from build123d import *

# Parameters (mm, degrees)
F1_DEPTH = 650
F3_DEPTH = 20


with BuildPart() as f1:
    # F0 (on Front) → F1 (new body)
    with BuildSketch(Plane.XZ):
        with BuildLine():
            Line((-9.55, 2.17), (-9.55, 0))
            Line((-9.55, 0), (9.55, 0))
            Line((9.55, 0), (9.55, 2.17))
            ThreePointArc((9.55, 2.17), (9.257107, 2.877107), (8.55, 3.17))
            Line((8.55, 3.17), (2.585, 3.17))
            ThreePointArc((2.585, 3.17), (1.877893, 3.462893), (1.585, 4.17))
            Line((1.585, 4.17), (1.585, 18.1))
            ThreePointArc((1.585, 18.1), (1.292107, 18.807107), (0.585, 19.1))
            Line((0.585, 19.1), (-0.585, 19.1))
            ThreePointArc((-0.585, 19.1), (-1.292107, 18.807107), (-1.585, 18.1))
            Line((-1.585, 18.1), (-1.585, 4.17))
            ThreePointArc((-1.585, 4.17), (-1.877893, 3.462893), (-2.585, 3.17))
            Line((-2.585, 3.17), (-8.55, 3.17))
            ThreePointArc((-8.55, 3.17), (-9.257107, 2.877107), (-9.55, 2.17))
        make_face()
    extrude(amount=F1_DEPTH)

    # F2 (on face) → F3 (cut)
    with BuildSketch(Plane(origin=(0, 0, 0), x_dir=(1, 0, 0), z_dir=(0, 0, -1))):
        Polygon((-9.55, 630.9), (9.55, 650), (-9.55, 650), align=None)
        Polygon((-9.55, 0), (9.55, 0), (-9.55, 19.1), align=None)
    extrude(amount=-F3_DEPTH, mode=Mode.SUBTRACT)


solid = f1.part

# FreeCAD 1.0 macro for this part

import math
import FreeCAD as App
import Part
import Sketcher
Q = App.Units.Quantity

doc = App.newDocument("Part")
body = doc.addObject("PartDesign::Body", "Body")

# Sketch on XZ plane
sketch1 = doc.addObject("Sketcher::SketchObject", "Sketch")
body.addObject(sketch1)
sketch1.AttachmentSupport = (doc.XZ_Plane, [""])
sketch1.MapMode = "FlatFace"
sketch1.addGeometry(Part.LineSegment(App.Vector(-9.6, 2.2, 0), App.Vector(-9.6, 0, 0)), False)
sketch1.addGeometry(Part.LineSegment(App.Vector(-9.6, 0, 0), App.Vector(9.6, 0, 0)), False)
sketch1.addGeometry(Part.LineSegment(App.Vector(9.6, 0, 0), App.Vector(9.6, 2.2, 0)), False)
sketch1.addGeometry(Part.ArcOfCircle(Part.Circle(App.Vector(8.6, 2.2, 0), App.Vector(0, 0, 1), 1), math.radians(0), math.radians(90)), False)
sketch1.addGeometry(Part.LineSegment(App.Vector(8.6, 3.2, 0), App.Vector(2.6, 3.2, 0)), False)
sketch1.addGeometry(Part.ArcOfCircle(Part.Circle(App.Vector(2.6, 4.2, 0), App.Vector(0, 0, 1), 1), math.radians(180), math.radians(270)), False)
sketch1.addGeometry(Part.LineSegment(App.Vector(1.6, 4.2, 0), App.Vector(1.6, 18.1, 0)), False)
sketch1.addGeometry(Part.ArcOfCircle(Part.Circle(App.Vector(0.6, 18.1, 0), App.Vector(0, 0, 1), 1), math.radians(0), math.radians(90)), False)
sketch1.addGeometry(Part.LineSegment(App.Vector(0.6, 19.1, 0), App.Vector(-0.6, 19.1, 0)), False)
sketch1.addGeometry(Part.ArcOfCircle(Part.Circle(App.Vector(-0.6, 18.1, 0), App.Vector(0, 0, 1), 1), math.radians(90), math.radians(180)), False)
sketch1.addGeometry(Part.LineSegment(App.Vector(-1.6, 18.1, 0), App.Vector(-1.6, 4.2, 0)), False)
sketch1.addGeometry(Part.ArcOfCircle(Part.Circle(App.Vector(-2.6, 4.2, 0), App.Vector(0, 0, 1), 1), math.radians(-90), math.radians(0)), False)
sketch1.addGeometry(Part.LineSegment(App.Vector(-2.6, 3.2, 0), App.Vector(-8.6, 3.2, 0)), False)
sketch1.addGeometry(Part.ArcOfCircle(Part.Circle(App.Vector(-8.6, 2.2, 0), App.Vector(0, 0, 1), 1), math.radians(90), math.radians(180)), False)
sketch1.addConstraint(Sketcher.Constraint("Coincident", 0, 2, 1, 1))
sketch1.addConstraint(Sketcher.Constraint("Coincident", 1, 2, 2, 1))
sketch1.addConstraint(Sketcher.Constraint("Tangent", 2, 2, 3, 1))
sketch1.addConstraint(Sketcher.Constraint("Tangent", 3, 2, 4, 1))
sketch1.addConstraint(Sketcher.Constraint("Tangent", 4, 2, 5, 2))
sketch1.addConstraint(Sketcher.Constraint("Tangent", 5, 1, 6, 1))
sketch1.addConstraint(Sketcher.Constraint("Tangent", 6, 2, 7, 1))
sketch1.addConstraint(Sketcher.Constraint("Tangent", 7, 2, 8, 1))
sketch1.addConstraint(Sketcher.Constraint("Tangent", 8, 2, 9, 1))
sketch1.addConstraint(Sketcher.Constraint("Tangent", 9, 2, 10, 1))
sketch1.addConstraint(Sketcher.Constraint("Tangent", 10, 2, 11, 2))
sketch1.addConstraint(Sketcher.Constraint("Tangent", 11, 1, 12, 1))
sketch1.addConstraint(Sketcher.Constraint("Tangent", 12, 2, 13, 1))
sketch1.addConstraint(Sketcher.Constraint("Tangent", 13, 2, 0, 1))
sketch1.addConstraint(Sketcher.Constraint("Vertical", 0))
sketch1.addConstraint(Sketcher.Constraint("Horizontal", 1))
sketch1.addConstraint(Sketcher.Constraint("Vertical", 2))
sketch1.addConstraint(Sketcher.Constraint("Horizontal", 4))
sketch1.addConstraint(Sketcher.Constraint("Vertical", 6))
sketch1.addConstraint(Sketcher.Constraint("Horizontal", 8))
sketch1.addConstraint(Sketcher.Constraint("Vertical", 10))
sketch1.addConstraint(Sketcher.Constraint("Horizontal", 12))
sketch1.addConstraint(Sketcher.Constraint("Equal", 3, 5))
sketch1.addConstraint(Sketcher.Constraint("Equal", 5, 7))
sketch1.addConstraint(Sketcher.Constraint("Equal", 7, 9))
sketch1.addConstraint(Sketcher.Constraint("Equal", 9, 11))
sketch1.addConstraint(Sketcher.Constraint("Equal", 11, 13))
sketch1.addConstraint(Sketcher.Constraint("Symmetric", 0, 2, 1, 2, -1, 1))
sketch1.addConstraint(Sketcher.Constraint("Symmetric", 5, 3, 11, 3, -2))
sketch1.addConstraint(Sketcher.Constraint("Radius", 3, Q("0.999999 mm")))
sketch1.addConstraint(Sketcher.Constraint("DistanceX", 1, 1, 1, 2, Q("19.1 mm")))
sketch1.addConstraint(Sketcher.Constraint("DistanceX", 8, 2, 8, 1, Q("1.17 mm")))
sketch1.addConstraint(Sketcher.Constraint("DistanceY", 0, 2, 0, 1, Q("2.17 mm")))
sketch1.addConstraint(Sketcher.Constraint("DistanceY", 6, 1, 6, 2, Q("13.93 mm")))
pad1 = doc.addObject("PartDesign::Pad", "Pad")
body.addObject(pad1)
pad1.Profile = sketch1
pad1.Length = 650

# Sketch on XY plane
sketch2 = doc.addObject("Sketcher::SketchObject", "Sketch001")
body.addObject(sketch2)
sketch2.AttachmentSupport = (doc.XY_Plane, [""])
sketch2.MapMode = "FlatFace"
sketch2.addGeometry(Part.LineSegment(App.Vector(-10, -631, 0), App.Vector(10, -650, 0)), False)
sketch2.addGeometry(Part.LineSegment(App.Vector(10, -650, 0), App.Vector(-10, -650, 0)), False)
sketch2.addGeometry(Part.LineSegment(App.Vector(-10, -650, 0), App.Vector(-10, -631, 0)), False)
sketch2.addGeometry(Part.LineSegment(App.Vector(-10, 0, 0), App.Vector(10, 0, 0)), False)
sketch2.addGeometry(Part.LineSegment(App.Vector(10, 0, 0), App.Vector(-10, -19, 0)), False)
sketch2.addGeometry(Part.LineSegment(App.Vector(-10, -19, 0), App.Vector(-10, 0, 0)), False)
sketch2.addConstraint(Sketcher.Constraint("Coincident", 0, 2, 1, 1))
sketch2.addConstraint(Sketcher.Constraint("Coincident", 1, 2, 2, 1))
sketch2.addConstraint(Sketcher.Constraint("Coincident", 2, 2, 0, 1))
sketch2.addConstraint(Sketcher.Constraint("Coincident", 3, 2, 4, 1))
sketch2.addConstraint(Sketcher.Constraint("Coincident", 4, 2, 5, 1))
sketch2.addConstraint(Sketcher.Constraint("Coincident", 5, 2, 3, 1))
sketch2.addConstraint(Sketcher.Constraint("Horizontal", 1))
sketch2.addConstraint(Sketcher.Constraint("Vertical", 2))
sketch2.addConstraint(Sketcher.Constraint("Horizontal", 3))
sketch2.addConstraint(Sketcher.Constraint("Vertical", 5))
sketch2.addConstraint(Sketcher.Constraint("Symmetric", 3, 2, 5, 2, -1, 1))
sketch2.addConstraint(Sketcher.Constraint("Perpendicular", 0, 4))
sketch2.addConstraint(Sketcher.Constraint("Vertical", 0, 2, 3, 2))
sketch2.addConstraint(Sketcher.Constraint("Vertical", 2, 2, 4, 2))
sketch2.addConstraint(Sketcher.Constraint("Equal", 3, 2))
sketch2.addConstraint(Sketcher.Constraint("DistanceX", 1, 2, 1, 1, Q("19.1 mm")))
sketch2.addConstraint(Sketcher.Constraint("DistanceY", 0, 2, -1, 1, Q("650 mm")))
pocket1 = doc.addObject("PartDesign::Pocket", "Pocket")
body.addObject(pocket1)
pocket1.Profile = sketch2
pocket1.Length = 20
pocket1.Reversed = True

doc.recompute()
